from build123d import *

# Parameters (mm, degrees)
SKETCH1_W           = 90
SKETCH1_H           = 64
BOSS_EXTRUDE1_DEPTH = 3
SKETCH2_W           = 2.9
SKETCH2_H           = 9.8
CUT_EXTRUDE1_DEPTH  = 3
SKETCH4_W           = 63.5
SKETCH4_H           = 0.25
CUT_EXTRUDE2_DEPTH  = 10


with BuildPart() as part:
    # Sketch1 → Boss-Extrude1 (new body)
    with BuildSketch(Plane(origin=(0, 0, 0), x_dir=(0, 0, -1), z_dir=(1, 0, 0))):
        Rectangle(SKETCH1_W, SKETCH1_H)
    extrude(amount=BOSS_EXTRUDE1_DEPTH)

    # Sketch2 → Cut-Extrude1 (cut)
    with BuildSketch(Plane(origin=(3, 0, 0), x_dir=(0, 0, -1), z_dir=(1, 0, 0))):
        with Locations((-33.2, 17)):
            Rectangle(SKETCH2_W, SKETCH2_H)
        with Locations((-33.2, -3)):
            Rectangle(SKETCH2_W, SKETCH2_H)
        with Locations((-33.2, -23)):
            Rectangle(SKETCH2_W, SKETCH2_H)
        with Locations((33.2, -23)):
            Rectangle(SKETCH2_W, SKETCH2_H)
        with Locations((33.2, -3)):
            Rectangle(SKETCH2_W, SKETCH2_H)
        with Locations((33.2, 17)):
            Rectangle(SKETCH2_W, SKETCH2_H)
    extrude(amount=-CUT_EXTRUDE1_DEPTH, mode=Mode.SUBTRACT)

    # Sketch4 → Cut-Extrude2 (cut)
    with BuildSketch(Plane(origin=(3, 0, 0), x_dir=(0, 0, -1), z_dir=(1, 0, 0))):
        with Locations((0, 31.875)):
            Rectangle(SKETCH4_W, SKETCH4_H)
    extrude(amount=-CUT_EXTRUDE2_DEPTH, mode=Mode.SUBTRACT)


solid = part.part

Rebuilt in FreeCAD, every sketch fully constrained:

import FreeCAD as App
import Part
import Sketcher
from FreeCAD import Vector
Q = App.Units.Quantity

doc = App.newDocument("Part")
body = doc.addObject("PartDesign::Body", "Body")

# Sketch on YZ plane
sketch1 = body.newObject("Sketcher::SketchObject", "Sketch")
sketch1.AttachmentSupport = (doc.getObject("YZ_Plane"), [""])
sketch1.MapMode = "FlatFace"
sketch1.addGeometry(Part.LineSegment(Vector(32, 45, 0), Vector(-32, 45, 0)), False)
sketch1.addGeometry(Part.LineSegment(Vector(-32, 45, 0), Vector(-32, -45, 0)), False)
sketch1.addGeometry(Part.LineSegment(Vector(-32, -45, 0), Vector(32, -45, 0)), False)
sketch1.addGeometry(Part.LineSegment(Vector(32, -45, 0), Vector(32, 45, 0)), False)
sketch1.addConstraint(Sketcher.Constraint("Coincident", 0, 2, 1, 1))
sketch1.addConstraint(Sketcher.Constraint("Coincident", 1, 2, 2, 1))
sketch1.addConstraint(Sketcher.Constraint("Coincident", 2, 2, 3, 1))
sketch1.addConstraint(Sketcher.Constraint("Coincident", 3, 2, 0, 1))
sketch1.addConstraint(Sketcher.Constraint("Horizontal", 0))
sketch1.addConstraint(Sketcher.Constraint("Vertical", 1))
sketch1.addConstraint(Sketcher.Constraint("Horizontal", 2))
sketch1.addConstraint(Sketcher.Constraint("Vertical", 3))
sketch1.addConstraint(Sketcher.Constraint("Symmetric", 0, 2, 2, 2, -1, 1))
sketch1.addConstraint(Sketcher.Constraint("DistanceX", 0, 2, 0, 1, Q("64 mm")))
sketch1.addConstraint(Sketcher.Constraint("DistanceY", 1, 2, 1, 1, Q("90 mm")))
pad1 = body.newObject("PartDesign::Pad", "Pad")
pad1.Profile = sketch1
pad1.Length = 3

# Sketch on YZ plane
sketch2 = body.newObject("Sketcher::SketchObject", "Sketch001")
sketch2.AttachmentSupport = (doc.getObject("YZ_Plane"), [""])
sketch2.MapMode = "FlatFace"
sketch2.AttachmentOffset = App.Placement(Vector(0, 0, 3), App.Rotation())
sketch2.addGeometry(Part.LineSegment(Vector(21.9, 34.6, 0), Vector(12.1, 34.6, 0)), False)
sketch2.addGeometry(Part.LineSegment(Vector(12.1, 34.6, 0), Vector(12.1, 31.8, 0)), False)
sketch2.addGeometry(Part.LineSegment(Vector(12.1, 31.8, 0), Vector(21.9, 31.8, 0)), False)
sketch2.addGeometry(Part.LineSegment(Vector(21.9, 31.8, 0), Vector(21.9, 34.6, 0)), False)
sketch2.addGeometry(Part.LineSegment(Vector(1.9, 34.6, 0), Vector(-7.9, 34.6, 0)), False)
sketch2.addGeometry(Part.LineSegment(Vector(-7.9, 34.6, 0), Vector(-7.9, 31.8, 0)), False)
sketch2.addGeometry(Part.LineSegment(Vector(-7.9, 31.8, 0), Vector(1.9, 31.8, 0)), False)
sketch2.addGeometry(Part.LineSegment(Vector(1.9, 31.8, 0), Vector(1.9, 34.6, 0)), False)
sketch2.addGeometry(Part.LineSegment(Vector(-18.1, 34.6, 0), Vector(-27.9, 34.6, 0)), False)
sketch2.addGeometry(Part.LineSegment(Vector(-27.9, 34.6, 0), Vector(-27.9, 31.8, 0)), False)
sketch2.addGeometry(Part.LineSegment(Vector(-27.9, 31.8, 0), Vector(-18.1, 31.8, 0)), False)
sketch2.addGeometry(Part.LineSegment(Vector(-18.1, 31.8, 0), Vector(-18.1, 34.6, 0)), False)
sketch2.addGeometry(Part.LineSegment(Vector(-18.1, -31.8, 0), Vector(-27.9, -31.8, 0)), False)
sketch2.addGeometry(Part.LineSegment(Vector(-27.9, -31.8, 0), Vector(-27.9, -34.6, 0)), False)
sketch2.addGeometry(Part.LineSegment(Vector(-27.9, -34.6, 0), Vector(-18.1, -34.6, 0)), False)
sketch2.addGeometry(Part.LineSegment(Vector(-18.1, -34.6, 0), Vector(-18.1, -31.8, 0)), False)
sketch2.addGeometry(Part.LineSegment(Vector(1.9, -31.8, 0), Vector(-7.9, -31.8, 0)), False)
sketch2.addGeometry(Part.LineSegment(Vector(-7.9, -31.8, 0), Vector(-7.9, -34.6, 0)), False)
sketch2.addGeometry(Part.LineSegment(Vector(-7.9, -34.6, 0), Vector(1.9, -34.6, 0)), False)
sketch2.addGeometry(Part.LineSegment(Vector(1.9, -34.6, 0), Vector(1.9, -31.8, 0)), False)
sketch2.addGeometry(Part.LineSegment(Vector(21.9, -31.8, 0), Vector(12.1, -31.8, 0)), False)
sketch2.addGeometry(Part.LineSegment(Vector(12.1, -31.8, 0), Vector(12.1, -34.6, 0)), False)
sketch2.addGeometry(Part.LineSegment(Vector(12.1, -34.6, 0), Vector(21.9, -34.6, 0)), False)
sketch2.addGeometry(Part.LineSegment(Vector(21.9, -34.6, 0), Vector(21.9, -31.8, 0)), False)
sketch2.addConstraint(Sketcher.Constraint("Coincident", 0, 2, 1, 1))
sketch2.addConstraint(Sketcher.Constraint("Coincident", 1, 2, 2, 1))
sketch2.addConstraint(Sketcher.Constraint("Coincident", 2, 2, 3, 1))
sketch2.addConstraint(Sketcher.Constraint("Coincident", 3, 2, 0, 1))
sketch2.addConstraint(Sketcher.Constraint("Coincident", 4, 2, 5, 1))
sketch2.addConstraint(Sketcher.Constraint("Coincident", 5, 2, 6, 1))
sketch2.addConstraint(Sketcher.Constraint("Coincident", 6, 2, 7, 1))
sketch2.addConstraint(Sketcher.Constraint("Coincident", 7, 2, 4, 1))
sketch2.addConstraint(Sketcher.Constraint("Coincident", 8, 2, 9, 1))
sketch2.addConstraint(Sketcher.Constraint("Coincident", 9, 2, 10, 1))
sketch2.addConstraint(Sketcher.Constraint("Coincident", 10, 2, 11, 1))
sketch2.addConstraint(Sketcher.Constraint("Coincident", 11, 2, 8, 1))
sketch2.addConstraint(Sketcher.Constraint("Coincident", 12, 2, 13, 1))
sketch2.addConstraint(Sketcher.Constraint("Coincident", 13, 2, 14, 1))
sketch2.addConstraint(Sketcher.Constraint("Coincident", 14, 2, 15, 1))
sketch2.addConstraint(Sketcher.Constraint("Coincident", 15, 2, 12, 1))
sketch2.addConstraint(Sketcher.Constraint("Coincident", 16, 2, 17, 1))
sketch2.addConstraint(Sketcher.Constraint("Coincident", 17, 2, 18, 1))
sketch2.addConstraint(Sketcher.Constraint("Coincident", 18, 2, 19, 1))
sketch2.addConstraint(Sketcher.Constraint("Coincident", 19, 2, 16, 1))
sketch2.addConstraint(Sketcher.Constraint("Coincident", 20, 2, 21, 1))
sketch2.addConstraint(Sketcher.Constraint("Coincident", 21, 2, 22, 1))
sketch2.addConstraint(Sketcher.Constraint("Coincident", 22, 2, 23, 1))
sketch2.addConstraint(Sketcher.Constraint("Coincident", 23, 2, 20, 1))
sketch2.addConstraint(Sketcher.Constraint("Horizontal", 0))
sketch2.addConstraint(Sketcher.Constraint("Vertical", 1))
sketch2.addConstraint(Sketcher.Constraint("Horizontal", 2))
sketch2.addConstraint(Sketcher.Constraint("Vertical", 3))
sketch2.addConstraint(Sketcher.Constraint("Horizontal", 4))
sketch2.addConstraint(Sketcher.Constraint("Vertical", 5))
sketch2.addConstraint(Sketcher.Constraint("Horizontal", 6))
sketch2.addConstraint(Sketcher.Constraint("Vertical", 7))
sketch2.addConstraint(Sketcher.Constraint("Horizontal", 8))
sketch2.addConstraint(Sketcher.Constraint("Vertical", 9))
sketch2.addConstraint(Sketcher.Constraint("Horizontal", 10))
sketch2.addConstraint(Sketcher.Constraint("Vertical", 11))
sketch2.addConstraint(Sketcher.Constraint("Horizontal", 12))
sketch2.addConstraint(Sketcher.Constraint("Vertical", 13))
sketch2.addConstraint(Sketcher.Constraint("Horizontal", 14))
sketch2.addConstraint(Sketcher.Constraint("Vertical", 15))
sketch2.addConstraint(Sketcher.Constraint("Horizontal", 16))
sketch2.addConstraint(Sketcher.Constraint("Vertical", 17))
sketch2.addConstraint(Sketcher.Constraint("Horizontal", 18))
sketch2.addConstraint(Sketcher.Constraint("Vertical", 19))
sketch2.addConstraint(Sketcher.Constraint("Horizontal", 20))
sketch2.addConstraint(Sketcher.Constraint("Vertical", 21))
sketch2.addConstraint(Sketcher.Constraint("Horizontal", 22))
sketch2.addConstraint(Sketcher.Constraint("Vertical", 23))
sketch2.addConstraint(Sketcher.Constraint("Symmetric", 9, 2, 12, 2, -1))
sketch2.addConstraint(Sketcher.Constraint("Symmetric", 11, 2, 14, 2, -1))
sketch2.addConstraint(Sketcher.Constraint("Symmetric", 5, 2, 16, 2, -1))
sketch2.addConstraint(Sketcher.Constraint("Symmetric", 7, 2, 18, 2, -1))
sketch2.addConstraint(Sketcher.Constraint("Symmetric", 1, 2, 20, 2, -1))
sketch2.addConstraint(Sketcher.Constraint("Symmetric", 3, 2, 22, 2, -1))
sketch2.addConstraint(Sketcher.Constraint("Horizontal", 3, 2, 4, 2))
sketch2.addConstraint(Sketcher.Constraint("Horizontal", 2, 2, 5, 2))
sketch2.addConstraint(Sketcher.Constraint("Horizontal", 7, 2, 8, 2))
sketch2.addConstraint(Sketcher.Constraint("Horizontal", 6, 2, 9, 2))
sketch2.addConstraint(Sketcher.Constraint("Equal", 2, 4))
sketch2.addConstraint(Sketcher.Constraint("Equal", 6, 8))
sketch2.addConstraint(Sketcher.Constraint("DistanceX", 0, 2, 0, 1, Q("9.8 mm")))
sketch2.addConstraint(Sketcher.Constraint("DistanceY", 1, 2, 1, 1, Q("2.9 mm")))
sketch2.addConstraint(Sketcher.Constraint("DistanceX", 4, 2, 0, 2, Q("20 mm")))
sketch2.addConstraint(Sketcher.Constraint("DistanceX", 8, 2, 4, 2, Q("20 mm")))
sketch2.addConstraint(Sketcher.Constraint("DistanceX", -1, 1, 0, 2, Q("12.1 mm")))
sketch2.addConstraint(Sketcher.Constraint("DistanceY", 12, 2, 9, 2, Q("63.5 mm")))
pocket1 = body.newObject("PartDesign::Pocket", "Pocket")
pocket1.Profile = sketch2
pocket1.Length = 3

# Sketch on YZ plane
sketch3 = body.newObject("Sketcher::SketchObject", "Sketch002")
sketch3.AttachmentSupport = (doc.getObject("YZ_Plane"), [""])
sketch3.MapMode = "FlatFace"
sketch3.AttachmentOffset = App.Placement(Vector(0, 0, 3), App.Rotation())
sketch3.addGeometry(Part.LineSegment(Vector(32, 31.75, 0), Vector(31.75, 31.75, 0)), False)
sketch3.addGeometry(Part.LineSegment(Vector(31.75, 31.75, 0), Vector(31.75, -31.75, 0)), False)
sketch3.addGeometry(Part.LineSegment(Vector(31.75, -31.75, 0), Vector(32, -31.75, 0)), False)
sketch3.addGeometry(Part.LineSegment(Vector(32, -31.75, 0), Vector(32, 31.75, 0)), False)
sketch3.addConstraint(Sketcher.Constraint("Coincident", 0, 2, 1, 1))
sketch3.addConstraint(Sketcher.Constraint("Coincident", 1, 2, 2, 1))
sketch3.addConstraint(Sketcher.Constraint("Coincident", 2, 2, 3, 1))
sketch3.addConstraint(Sketcher.Constraint("Coincident", 3, 2, 0, 1))
sketch3.addConstraint(Sketcher.Constraint("Horizontal", 0))
sketch3.addConstraint(Sketcher.Constraint("Vertical", 1))
sketch3.addConstraint(Sketcher.Constraint("Horizontal", 2))
sketch3.addConstraint(Sketcher.Constraint("Vertical", 3))
sketch3.addConstraint(Sketcher.Constraint("DistanceY", 1, 2, 1, 1, Q("63.5 mm")))
sketch3.addConstraint(Sketcher.Constraint("DistanceX", -1, 1, 2, 2, Q("32 mm")))
sketch3.addConstraint(Sketcher.Constraint("DistanceX", 0, 2, 0, 1, Q("0.25 mm")))
sketch3.addConstraint(Sketcher.Constraint("DistanceY", -1, 1, 0, 2, Q("31.75 mm")))
pocket2 = body.newObject("PartDesign::Pocket", "Pocket001")
pocket2.Profile = sketch3
pocket2.Length = 10

doc.recompute()
